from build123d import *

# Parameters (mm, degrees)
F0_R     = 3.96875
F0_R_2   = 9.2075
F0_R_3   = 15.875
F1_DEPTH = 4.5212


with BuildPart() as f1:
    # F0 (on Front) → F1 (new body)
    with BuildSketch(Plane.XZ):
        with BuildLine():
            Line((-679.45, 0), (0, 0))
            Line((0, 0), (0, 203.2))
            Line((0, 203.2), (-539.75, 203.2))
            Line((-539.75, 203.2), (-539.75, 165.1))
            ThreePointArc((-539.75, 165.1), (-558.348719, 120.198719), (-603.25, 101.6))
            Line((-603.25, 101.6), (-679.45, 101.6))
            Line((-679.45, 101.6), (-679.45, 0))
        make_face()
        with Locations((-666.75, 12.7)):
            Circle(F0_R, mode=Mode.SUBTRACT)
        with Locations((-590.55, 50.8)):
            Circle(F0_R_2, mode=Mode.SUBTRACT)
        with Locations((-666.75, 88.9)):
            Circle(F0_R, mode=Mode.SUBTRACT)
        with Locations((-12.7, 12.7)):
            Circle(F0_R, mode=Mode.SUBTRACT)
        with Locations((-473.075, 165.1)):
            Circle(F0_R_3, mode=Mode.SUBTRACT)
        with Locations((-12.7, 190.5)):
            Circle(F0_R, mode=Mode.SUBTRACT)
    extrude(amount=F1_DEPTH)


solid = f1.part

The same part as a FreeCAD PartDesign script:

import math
import FreeCAD as App
import Part
import Sketcher
from FreeCAD import Vector
Q = App.Units.Quantity

doc = App.newDocument("Part")
params = doc.addObject("Spreadsheet::Sheet", "Params")
for row, (alias, value) in enumerate([
    ("sketch1_radius", "2.4999999 in"),
    ("sketch1_diameter", "1.25 in"),
    ("sketch1_width", "3 in"),
    ("sketch1_height", "8 in"),
    ("sketch1_height2", "4 in"),
    ("pad1_length", "0.178 in"),
], start=1):
    params.set(f"A{row}", alias)
    params.set(f"B{row}", "=" + value)
    params.setAlias(f"B{row}", alias)

body = doc.addObject("PartDesign::Body", "Body")

# Sketch on XZ plane
sketch1 = body.newObject("Sketcher::SketchObject", "Sketch")
sketch1.AttachmentSupport = (doc.getObject("XZ_Plane"), [""])
sketch1.MapMode = "FlatFace"
sketch1.addGeometry(Part.LineSegment(Vector(-679.5, 0, 0), Vector(0, 0, 0)), False)
sketch1.addGeometry(Part.LineSegment(Vector(0, 0, 0), Vector(0, 203.2, 0)), False)
sketch1.addGeometry(Part.LineSegment(Vector(0, 203.2, 0), Vector(-539.8, 203.2, 0)), False)
sketch1.addGeometry(Part.LineSegment(Vector(-539.8, 203.2, 0), Vector(-539.8, 165.1, 0)), False)
sketch1.addGeometry(Part.ArcOfCircle(Part.Circle(Vector(-603.2, 165.1, 0), Vector(0, 0, 1), 63.5), math.radians(-90), math.radians(0)), False)
sketch1.addGeometry(Part.LineSegment(Vector(-603.2, 101.6, 0), Vector(-679.5, 101.6, 0)), False)
sketch1.addGeometry(Part.LineSegment(Vector(-679.5, 101.6, 0), Vector(-679.5, 0, 0)), False)
sketch1.addGeometry(Part.Circle(Vector(-666.8, 12.7, 0), Vector(0, 0, 1), 4), False)
sketch1.addGeometry(Part.Circle(Vector(-590.5, 50.8, 0), Vector(0, 0, 1), 9.2), False)
sketch1.addGeometry(Part.Circle(Vector(-666.8, 88.9, 0), Vector(0, 0, 1), 4), False)
sketch1.addGeometry(Part.Circle(Vector(-12.7, 12.7, 0), Vector(0, 0, 1), 4), False)
sketch1.addGeometry(Part.Circle(Vector(-473.1, 165.1, 0), Vector(0, 0, 1), 15.9), False)
sketch1.addGeometry(Part.Circle(Vector(-12.7, 190.5, 0), Vector(0, 0, 1), 4), False)
sketch1.addConstraint(Sketcher.Constraint("Coincident", 0, 2, 1, 1))
sketch1.addConstraint(Sketcher.Constraint("Coincident", 1, 2, 2, 1))
sketch1.addConstraint(Sketcher.Constraint("Coincident", 2, 2, 3, 1))
sketch1.addConstraint(Sketcher.Constraint("Tangent", 3, 2, 4, 2))
sketch1.addConstraint(Sketcher.Constraint("Tangent", 4, 1, 5, 1))
sketch1.addConstraint(Sketcher.Constraint("Coincident", 5, 2, 6, 1))
sketch1.addConstraint(Sketcher.Constraint("Coincident", 6, 2, 0, 1))
sketch1.addConstraint(Sketcher.Constraint("Horizontal", 0))
sketch1.addConstraint(Sketcher.Constraint("Vertical", 1))
sketch1.addConstraint(Sketcher.Constraint("Horizontal", 2))
sketch1.addConstraint(Sketcher.Constraint("Vertical", 3))
sketch1.addConstraint(Sketcher.Constraint("Horizontal", 5))
sketch1.addConstraint(Sketcher.Constraint("Vertical", 6))
sketch1.addConstraint(Sketcher.Constraint("Coincident", 0, 2, -1, 1))
sketch1.addConstraint(Sketcher.Constraint("Equal", 7, 9))
sketch1.addConstraint(Sketcher.Constraint("Equal", 9, 10))
sketch1.addConstraint(Sketcher.Constraint("Equal", 10, 12))
sketch1.addConstraint(Sketcher.Constraint("Horizontal", 7, 3, 10, 3))
sketch1.addConstraint(Sketcher.Constraint("Horizontal", 4, 3, 11, 3))
sketch1.addConstraint(Sketcher.Constraint("Vertical", 7, 3, 9, 3))
sketch1.addConstraint(Sketcher.Constraint("Vertical", 10, 3, 12, 3))
sketch1.addConstraint(Sketcher.Constraint("Radius", 4, Q("2.4999999 in")))
sketch1.addConstraint(Sketcher.Constraint("Diameter", 11, Q("1.25 in")))
sketch1.addConstraint(Sketcher.Constraint("DistanceX", 5, 2, 5, 1, Q("3 in")))
sketch1.addConstraint(Sketcher.Constraint("DistanceY", 1, 1, 1, 2, Q("8 in")))
sketch1.addConstraint(Sketcher.Constraint("DistanceY", 6, 2, 6, 1, Q("4 in")))
sketch1.addConstraint(Sketcher.Constraint("Diameter", 7, Q("0.3125 in")))
sketch1.addConstraint(Sketcher.Constraint("Diameter", 8, Q("0.725 in")))
sketch1.addConstraint(Sketcher.Constraint("DistanceY", -1, 1, 8, 3, Q("2 in")))
sketch1.addConstraint(Sketcher.Constraint("DistanceY", 7, 3, 4, 3, Q("5.9999999 in")))
sketch1.addConstraint(Sketcher.Constraint("DistanceX", 7, 3, 8, 3, Q("3 in")))
sketch1.addConstraint(Sketcher.Constraint("DistanceY", 7, 3, 9, 3, Q("3 in")))
sketch1.addConstraint(Sketcher.Constraint("DistanceY", 10, 3, 12, 3, Q("7 in")))
sketch1.addConstraint(Sketcher.Constraint("DistanceX", 8, 3, 2, 2, Q("2 in")))
sketch1.addConstraint(Sketcher.Constraint("DistanceX", 0, 1, 0, 2, Q("26.75 in")))
sketch1.addConstraint(Sketcher.Constraint("DistanceX", 10, 3, -1, 1, Q("0.5 in")))
sketch1.addConstraint(Sketcher.Constraint("DistanceX", 11, 3, -1, 1, Q("18.625 in")))
sketch1.setExpression("Constraints[21]", "Params.sketch1_radius")
sketch1.setExpression("Constraints[22]", "Params.sketch1_diameter")
sketch1.setExpression("Constraints[23]", "Params.sketch1_width")
sketch1.setExpression("Constraints[24]", "Params.sketch1_height")
sketch1.setExpression("Constraints[25]", "Params.sketch1_height2")
pad1 = body.newObject("PartDesign::Pad", "Pad")
pad1.Profile = sketch1
pad1.setExpression("Length", "Params.pad1_length")

doc.recompute()
